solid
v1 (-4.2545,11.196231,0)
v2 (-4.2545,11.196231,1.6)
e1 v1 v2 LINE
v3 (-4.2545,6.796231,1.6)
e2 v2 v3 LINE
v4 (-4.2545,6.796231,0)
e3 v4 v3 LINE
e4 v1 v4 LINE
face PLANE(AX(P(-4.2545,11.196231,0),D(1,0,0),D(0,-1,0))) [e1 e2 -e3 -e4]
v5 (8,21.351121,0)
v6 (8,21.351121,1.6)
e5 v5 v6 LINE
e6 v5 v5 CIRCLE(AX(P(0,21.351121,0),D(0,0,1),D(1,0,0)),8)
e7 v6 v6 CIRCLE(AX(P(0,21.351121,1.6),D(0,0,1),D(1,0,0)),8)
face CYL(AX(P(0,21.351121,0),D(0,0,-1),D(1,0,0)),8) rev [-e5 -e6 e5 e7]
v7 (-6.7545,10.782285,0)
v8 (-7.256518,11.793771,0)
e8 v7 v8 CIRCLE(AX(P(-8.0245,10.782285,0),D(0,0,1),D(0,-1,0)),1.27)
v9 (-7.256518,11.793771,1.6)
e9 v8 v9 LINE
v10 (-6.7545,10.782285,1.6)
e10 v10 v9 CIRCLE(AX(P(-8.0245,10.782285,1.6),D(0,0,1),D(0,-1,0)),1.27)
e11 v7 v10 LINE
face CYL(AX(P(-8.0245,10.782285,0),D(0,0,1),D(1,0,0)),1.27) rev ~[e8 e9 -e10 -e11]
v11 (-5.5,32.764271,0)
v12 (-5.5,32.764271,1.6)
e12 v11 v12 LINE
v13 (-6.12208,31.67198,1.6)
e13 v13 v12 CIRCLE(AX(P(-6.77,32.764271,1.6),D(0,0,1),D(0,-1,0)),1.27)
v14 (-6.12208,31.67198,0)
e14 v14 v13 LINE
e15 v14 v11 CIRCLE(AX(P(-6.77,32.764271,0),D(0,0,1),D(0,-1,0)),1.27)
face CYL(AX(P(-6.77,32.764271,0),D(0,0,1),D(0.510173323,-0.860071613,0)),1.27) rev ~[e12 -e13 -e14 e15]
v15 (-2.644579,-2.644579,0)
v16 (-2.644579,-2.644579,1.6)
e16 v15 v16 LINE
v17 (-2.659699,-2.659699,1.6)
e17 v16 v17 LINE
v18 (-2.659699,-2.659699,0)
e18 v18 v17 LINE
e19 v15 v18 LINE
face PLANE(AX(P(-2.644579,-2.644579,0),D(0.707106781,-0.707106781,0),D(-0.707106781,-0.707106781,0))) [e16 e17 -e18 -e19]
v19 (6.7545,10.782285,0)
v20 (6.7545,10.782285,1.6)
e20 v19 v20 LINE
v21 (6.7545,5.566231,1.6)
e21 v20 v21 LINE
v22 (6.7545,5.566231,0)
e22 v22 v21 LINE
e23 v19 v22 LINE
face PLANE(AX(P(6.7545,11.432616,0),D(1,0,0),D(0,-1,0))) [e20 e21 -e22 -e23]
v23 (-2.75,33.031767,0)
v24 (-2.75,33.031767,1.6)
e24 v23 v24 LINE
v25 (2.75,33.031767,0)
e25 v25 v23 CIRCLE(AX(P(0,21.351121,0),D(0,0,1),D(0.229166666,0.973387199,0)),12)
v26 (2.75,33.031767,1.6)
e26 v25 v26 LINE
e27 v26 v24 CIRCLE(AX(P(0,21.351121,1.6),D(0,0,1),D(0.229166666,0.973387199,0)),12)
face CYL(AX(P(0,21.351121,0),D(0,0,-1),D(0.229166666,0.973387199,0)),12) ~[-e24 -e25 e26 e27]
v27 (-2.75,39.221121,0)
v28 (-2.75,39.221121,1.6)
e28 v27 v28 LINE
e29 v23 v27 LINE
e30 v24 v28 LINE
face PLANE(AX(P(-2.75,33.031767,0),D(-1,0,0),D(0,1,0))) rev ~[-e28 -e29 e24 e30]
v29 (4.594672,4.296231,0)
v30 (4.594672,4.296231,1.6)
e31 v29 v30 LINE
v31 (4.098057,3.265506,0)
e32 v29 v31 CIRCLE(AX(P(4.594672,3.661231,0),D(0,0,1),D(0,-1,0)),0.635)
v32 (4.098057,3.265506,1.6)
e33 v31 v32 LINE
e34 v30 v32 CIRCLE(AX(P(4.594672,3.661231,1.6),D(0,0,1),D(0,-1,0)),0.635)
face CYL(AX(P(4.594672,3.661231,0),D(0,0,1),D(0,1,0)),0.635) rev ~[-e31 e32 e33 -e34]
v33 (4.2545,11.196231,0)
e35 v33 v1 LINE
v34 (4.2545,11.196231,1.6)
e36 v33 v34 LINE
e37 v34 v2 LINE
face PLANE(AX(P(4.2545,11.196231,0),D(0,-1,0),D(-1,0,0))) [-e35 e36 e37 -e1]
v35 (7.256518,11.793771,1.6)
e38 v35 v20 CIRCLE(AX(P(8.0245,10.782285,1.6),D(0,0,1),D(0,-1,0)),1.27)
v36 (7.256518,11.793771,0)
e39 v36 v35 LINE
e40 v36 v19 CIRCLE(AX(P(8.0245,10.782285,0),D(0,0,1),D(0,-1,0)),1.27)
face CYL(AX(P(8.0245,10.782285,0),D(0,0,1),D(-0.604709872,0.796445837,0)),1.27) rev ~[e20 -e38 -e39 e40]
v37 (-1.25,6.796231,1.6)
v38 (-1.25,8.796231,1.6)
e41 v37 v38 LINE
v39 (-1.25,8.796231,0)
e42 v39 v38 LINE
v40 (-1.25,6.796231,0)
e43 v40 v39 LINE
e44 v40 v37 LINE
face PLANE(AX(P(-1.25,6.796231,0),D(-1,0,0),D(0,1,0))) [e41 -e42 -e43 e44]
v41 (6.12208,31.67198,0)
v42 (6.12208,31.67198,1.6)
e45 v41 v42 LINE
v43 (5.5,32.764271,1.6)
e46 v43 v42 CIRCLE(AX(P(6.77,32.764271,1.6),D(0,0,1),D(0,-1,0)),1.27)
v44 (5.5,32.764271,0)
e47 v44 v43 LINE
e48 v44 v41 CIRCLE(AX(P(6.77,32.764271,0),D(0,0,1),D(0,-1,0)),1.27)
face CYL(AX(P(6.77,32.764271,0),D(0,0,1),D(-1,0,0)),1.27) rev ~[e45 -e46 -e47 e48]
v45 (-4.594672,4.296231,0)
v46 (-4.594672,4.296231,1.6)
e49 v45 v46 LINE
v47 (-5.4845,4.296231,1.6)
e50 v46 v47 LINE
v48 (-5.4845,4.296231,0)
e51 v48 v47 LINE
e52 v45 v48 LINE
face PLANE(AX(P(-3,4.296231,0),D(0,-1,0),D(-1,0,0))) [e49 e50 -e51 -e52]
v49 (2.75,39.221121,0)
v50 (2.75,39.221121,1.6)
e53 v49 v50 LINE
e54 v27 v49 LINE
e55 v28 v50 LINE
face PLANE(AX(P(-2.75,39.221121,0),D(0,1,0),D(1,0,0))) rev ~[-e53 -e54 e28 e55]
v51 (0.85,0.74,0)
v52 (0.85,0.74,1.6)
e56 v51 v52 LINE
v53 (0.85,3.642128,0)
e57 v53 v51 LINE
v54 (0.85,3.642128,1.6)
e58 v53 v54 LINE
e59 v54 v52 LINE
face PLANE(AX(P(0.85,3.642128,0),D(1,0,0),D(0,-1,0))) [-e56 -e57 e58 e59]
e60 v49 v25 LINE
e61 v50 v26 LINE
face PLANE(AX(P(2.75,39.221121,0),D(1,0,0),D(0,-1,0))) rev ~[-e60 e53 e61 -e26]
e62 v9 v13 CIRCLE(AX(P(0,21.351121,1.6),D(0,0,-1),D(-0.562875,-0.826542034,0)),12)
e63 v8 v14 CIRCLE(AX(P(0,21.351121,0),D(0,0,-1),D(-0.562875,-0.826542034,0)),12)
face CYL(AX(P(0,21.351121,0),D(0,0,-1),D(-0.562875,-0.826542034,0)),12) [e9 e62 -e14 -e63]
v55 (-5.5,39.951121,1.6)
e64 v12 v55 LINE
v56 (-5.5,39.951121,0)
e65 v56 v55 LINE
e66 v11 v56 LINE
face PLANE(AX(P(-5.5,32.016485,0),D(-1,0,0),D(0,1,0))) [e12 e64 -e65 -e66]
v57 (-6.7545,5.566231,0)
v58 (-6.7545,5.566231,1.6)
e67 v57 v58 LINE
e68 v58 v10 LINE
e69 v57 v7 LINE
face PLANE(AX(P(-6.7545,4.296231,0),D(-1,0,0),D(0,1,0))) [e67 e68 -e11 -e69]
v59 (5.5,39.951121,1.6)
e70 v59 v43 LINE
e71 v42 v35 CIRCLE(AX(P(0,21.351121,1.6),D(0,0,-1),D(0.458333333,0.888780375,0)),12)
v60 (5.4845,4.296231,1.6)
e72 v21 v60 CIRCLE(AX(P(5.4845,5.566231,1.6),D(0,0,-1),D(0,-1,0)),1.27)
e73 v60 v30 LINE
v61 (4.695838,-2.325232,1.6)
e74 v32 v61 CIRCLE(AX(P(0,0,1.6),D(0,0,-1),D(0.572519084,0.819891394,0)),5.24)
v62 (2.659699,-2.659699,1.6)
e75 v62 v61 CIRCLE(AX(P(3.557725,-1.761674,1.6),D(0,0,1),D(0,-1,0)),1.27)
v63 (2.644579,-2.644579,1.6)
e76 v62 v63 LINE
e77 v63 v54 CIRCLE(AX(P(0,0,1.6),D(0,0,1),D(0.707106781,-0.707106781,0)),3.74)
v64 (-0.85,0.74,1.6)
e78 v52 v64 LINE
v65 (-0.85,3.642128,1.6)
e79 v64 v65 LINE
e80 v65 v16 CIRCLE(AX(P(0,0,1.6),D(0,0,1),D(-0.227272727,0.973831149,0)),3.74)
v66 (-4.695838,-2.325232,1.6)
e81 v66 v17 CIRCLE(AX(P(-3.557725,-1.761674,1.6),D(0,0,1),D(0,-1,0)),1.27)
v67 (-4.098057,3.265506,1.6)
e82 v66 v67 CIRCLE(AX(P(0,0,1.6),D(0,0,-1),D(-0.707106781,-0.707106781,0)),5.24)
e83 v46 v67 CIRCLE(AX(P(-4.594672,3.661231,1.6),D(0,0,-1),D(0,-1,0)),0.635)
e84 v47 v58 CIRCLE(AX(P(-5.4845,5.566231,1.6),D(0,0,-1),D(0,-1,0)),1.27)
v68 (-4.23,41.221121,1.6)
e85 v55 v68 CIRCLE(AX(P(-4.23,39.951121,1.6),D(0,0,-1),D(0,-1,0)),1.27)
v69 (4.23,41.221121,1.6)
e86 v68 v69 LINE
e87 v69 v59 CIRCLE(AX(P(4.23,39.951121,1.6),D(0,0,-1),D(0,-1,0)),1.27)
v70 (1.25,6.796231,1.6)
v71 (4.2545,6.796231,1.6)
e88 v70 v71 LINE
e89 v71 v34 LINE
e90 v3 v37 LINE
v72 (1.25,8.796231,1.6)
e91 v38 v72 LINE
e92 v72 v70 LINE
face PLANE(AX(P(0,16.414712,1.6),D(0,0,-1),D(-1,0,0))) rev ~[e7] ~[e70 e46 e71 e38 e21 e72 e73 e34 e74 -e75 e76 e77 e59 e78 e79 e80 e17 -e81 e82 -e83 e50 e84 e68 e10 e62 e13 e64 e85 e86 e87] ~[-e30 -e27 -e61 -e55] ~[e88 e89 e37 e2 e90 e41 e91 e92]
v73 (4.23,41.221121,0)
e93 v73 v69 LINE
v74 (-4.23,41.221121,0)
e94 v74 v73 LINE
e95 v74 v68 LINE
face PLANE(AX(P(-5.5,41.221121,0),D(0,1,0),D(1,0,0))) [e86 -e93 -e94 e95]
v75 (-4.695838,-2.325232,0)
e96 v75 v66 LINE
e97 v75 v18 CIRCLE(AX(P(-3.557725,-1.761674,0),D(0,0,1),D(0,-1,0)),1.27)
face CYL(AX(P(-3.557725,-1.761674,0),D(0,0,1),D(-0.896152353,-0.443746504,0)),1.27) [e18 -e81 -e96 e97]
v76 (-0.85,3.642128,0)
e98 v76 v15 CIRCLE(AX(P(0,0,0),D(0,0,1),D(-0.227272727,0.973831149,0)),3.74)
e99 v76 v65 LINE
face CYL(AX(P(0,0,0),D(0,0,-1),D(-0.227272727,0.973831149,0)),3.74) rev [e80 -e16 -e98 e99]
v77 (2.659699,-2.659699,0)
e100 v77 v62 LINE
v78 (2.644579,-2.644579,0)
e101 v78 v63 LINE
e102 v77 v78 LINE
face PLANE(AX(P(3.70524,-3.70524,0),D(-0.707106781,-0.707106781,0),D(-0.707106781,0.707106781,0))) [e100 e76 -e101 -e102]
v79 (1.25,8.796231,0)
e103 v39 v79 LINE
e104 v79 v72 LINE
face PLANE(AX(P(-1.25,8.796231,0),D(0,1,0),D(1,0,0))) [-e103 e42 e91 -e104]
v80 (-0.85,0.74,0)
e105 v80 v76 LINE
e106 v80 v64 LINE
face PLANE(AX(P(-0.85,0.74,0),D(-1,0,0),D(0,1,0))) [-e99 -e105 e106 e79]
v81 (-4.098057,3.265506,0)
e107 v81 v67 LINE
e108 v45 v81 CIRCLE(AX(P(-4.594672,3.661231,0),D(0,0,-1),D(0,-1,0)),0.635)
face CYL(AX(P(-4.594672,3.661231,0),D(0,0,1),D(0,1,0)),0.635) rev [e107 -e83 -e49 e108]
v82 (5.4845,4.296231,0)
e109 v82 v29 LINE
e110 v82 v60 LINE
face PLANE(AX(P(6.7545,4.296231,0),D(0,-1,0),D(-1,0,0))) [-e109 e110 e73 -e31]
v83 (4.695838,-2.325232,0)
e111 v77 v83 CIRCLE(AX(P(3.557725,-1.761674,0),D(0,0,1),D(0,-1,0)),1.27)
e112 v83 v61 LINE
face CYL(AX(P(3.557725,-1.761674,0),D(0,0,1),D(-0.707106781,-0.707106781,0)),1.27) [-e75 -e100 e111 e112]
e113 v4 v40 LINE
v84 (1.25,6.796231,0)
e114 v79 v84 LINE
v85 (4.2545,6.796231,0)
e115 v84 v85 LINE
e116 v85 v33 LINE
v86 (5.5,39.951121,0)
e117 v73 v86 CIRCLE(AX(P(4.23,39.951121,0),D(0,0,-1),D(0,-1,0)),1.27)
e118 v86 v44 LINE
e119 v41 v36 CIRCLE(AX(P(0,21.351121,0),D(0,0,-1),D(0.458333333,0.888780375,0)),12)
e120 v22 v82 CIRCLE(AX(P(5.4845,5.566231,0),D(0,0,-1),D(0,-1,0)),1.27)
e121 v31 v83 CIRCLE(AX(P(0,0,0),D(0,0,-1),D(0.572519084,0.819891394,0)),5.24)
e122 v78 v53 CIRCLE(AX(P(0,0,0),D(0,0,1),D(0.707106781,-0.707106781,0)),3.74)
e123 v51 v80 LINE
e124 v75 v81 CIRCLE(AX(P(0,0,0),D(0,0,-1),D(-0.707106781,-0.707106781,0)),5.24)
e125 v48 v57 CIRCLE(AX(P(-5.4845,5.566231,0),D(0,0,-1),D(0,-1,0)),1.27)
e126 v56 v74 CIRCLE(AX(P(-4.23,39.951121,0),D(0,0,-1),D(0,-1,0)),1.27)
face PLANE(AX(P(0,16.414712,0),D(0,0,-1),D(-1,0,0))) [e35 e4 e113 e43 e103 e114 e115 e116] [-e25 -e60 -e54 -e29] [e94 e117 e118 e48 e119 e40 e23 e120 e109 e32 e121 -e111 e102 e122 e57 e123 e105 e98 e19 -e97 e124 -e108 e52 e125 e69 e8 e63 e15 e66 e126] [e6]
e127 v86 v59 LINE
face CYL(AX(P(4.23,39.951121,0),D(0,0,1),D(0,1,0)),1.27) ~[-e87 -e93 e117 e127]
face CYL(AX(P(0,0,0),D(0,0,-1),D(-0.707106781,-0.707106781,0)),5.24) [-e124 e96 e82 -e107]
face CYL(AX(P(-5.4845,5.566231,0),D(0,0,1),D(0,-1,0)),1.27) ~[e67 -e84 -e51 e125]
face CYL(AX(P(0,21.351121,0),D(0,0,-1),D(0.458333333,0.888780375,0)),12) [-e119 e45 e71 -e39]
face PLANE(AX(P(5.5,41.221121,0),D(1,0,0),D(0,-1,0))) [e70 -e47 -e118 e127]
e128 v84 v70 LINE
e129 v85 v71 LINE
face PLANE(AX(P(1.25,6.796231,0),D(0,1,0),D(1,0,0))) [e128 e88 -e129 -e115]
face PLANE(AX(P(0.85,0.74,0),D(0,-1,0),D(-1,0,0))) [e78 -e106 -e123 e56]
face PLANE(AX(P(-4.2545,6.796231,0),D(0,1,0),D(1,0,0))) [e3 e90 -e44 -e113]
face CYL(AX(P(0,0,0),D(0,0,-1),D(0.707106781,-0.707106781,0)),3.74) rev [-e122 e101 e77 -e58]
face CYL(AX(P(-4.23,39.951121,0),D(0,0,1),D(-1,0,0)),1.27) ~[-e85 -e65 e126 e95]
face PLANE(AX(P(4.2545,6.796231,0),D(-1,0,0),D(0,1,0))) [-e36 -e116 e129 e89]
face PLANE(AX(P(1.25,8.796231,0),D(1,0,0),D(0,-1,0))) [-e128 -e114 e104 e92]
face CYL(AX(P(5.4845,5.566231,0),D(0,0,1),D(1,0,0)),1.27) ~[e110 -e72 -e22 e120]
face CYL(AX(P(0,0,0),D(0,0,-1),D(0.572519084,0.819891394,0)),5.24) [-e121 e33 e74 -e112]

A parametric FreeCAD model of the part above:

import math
import FreeCAD as App
import Part
import Sketcher

V = App.Vector


def edges_at(feature, points):
    """Names of the edges that pass closest to the given points."""
    edges = feature.Shape.Edges
    near = lambda p: min(range(len(edges)), key=lambda i: edges[i].distToShape(Part.Vertex(*p))[0])
    return sorted({f"Edge{near(p) + 1}" for p in points})

doc = App.newDocument("Part")
body = doc.addObject("PartDesign::Body", "Body")

sketch1 = body.newObject("Sketcher::SketchObject", "Sketch")
sketch1.AttachmentSupport = (doc.getObject("XY_Plane"), [""])
sketch1.MapMode = "FlatFace"
sketch1.addGeometry([
    Part.LineSegment(V(-5.5, 41.2, 0), V(-5.5, 32, 0)),
    Part.ArcOfCircle(Part.Circle(V(0, 21.4, 0), V(0, 0, 1), 12), math.radians(117), math.radians(236)),
    Part.LineSegment(V(-6.8, 11.4, 0), V(-6.8, 4.3, 0)),
    Part.LineSegment(V(-6.8, 4.3, 0), V(-3, 4.3, 0)),
    Part.ArcOfCircle(Part.Circle(V(0, 0, 0), V(0, 0, 1), 5.2), math.radians(125), math.radians(225)),
    Part.LineSegment(V(-3.7, -3.7, 0), V(-2.6, -2.6, 0)),
    Part.ArcOfCircle(Part.Circle(V(0, 0, 0), V(0, 0, 1), 3.7), math.radians(103), math.radians(225)),
    Part.LineSegment(V(-0.8, 3.6, 0), V(-0.8, 0.7, 0)),
    Part.LineSegment(V(-0.8, 0.7, 0), V(0.8, 0.7, 0)),
    Part.LineSegment(V(0.8, 0.7, 0), V(0.8, 3.6, 0)),
    Part.ArcOfCircle(Part.Circle(V(0, 0, 0), V(0, 0, 1), 3.7), math.radians(-45), math.radians(77)),
    Part.LineSegment(V(2.6, -2.6, 0), V(3.7, -3.7, 0)),
    Part.ArcOfCircle(Part.Circle(V(0, 0, 0), V(0, 0, 1), 5.2), math.radians(-45), math.radians(55)),
    Part.LineSegment(V(3, 4.3, 0), V(6.8, 4.3, 0)),
    Part.LineSegment(V(6.8, 4.3, 0), V(6.8, 11.4, 0)),
    Part.ArcOfCircle(Part.Circle(V(0, 21.4, 0), V(0, 0, 1), 12), math.radians(-56), math.radians(63)),
    Part.LineSegment(V(5.5, 32, 0), V(5.5, 41.2, 0)),
    Part.LineSegment(V(5.5, 41.2, 0), V(-5.5, 41.2, 0)),
    Part.LineSegment(V(-1.2, 6.8, 0), V(-4.3, 6.8, 0)),
    Part.LineSegment(V(-4.3, 6.8, 0), V(-4.3, 11.2, 0)),
    Part.LineSegment(V(-4.3, 11.2, 0), V(4.3, 11.2, 0)),
    Part.LineSegment(V(4.3, 11.2, 0), V(4.3, 6.8, 0)),
    Part.LineSegment(V(4.3, 6.8, 0), V(1.2, 6.8, 0)),
    Part.LineSegment(V(1.2, 6.8, 0), V(1.2, 8.8, 0)),
    Part.LineSegment(V(1.2, 8.8, 0), V(-1.2, 8.8, 0)),
    Part.LineSegment(V(-1.2, 8.8, 0), V(-1.2, 6.8, 0)),
    Part.Circle(V(0, 21.4, 0), V(0, 0, 1), 8),
    Part.LineSegment(V(-2.8, 39.2, 0), V(2.8, 39.2, 0)),
    Part.LineSegment(V(2.8, 39.2, 0), V(2.8, 33, 0)),
    Part.ArcOfCircle(Part.Circle(V(0, 21.4, 0), V(0, 0, 1), 12), math.radians(77), math.radians(103)),
    Part.LineSegment(V(-2.8, 33, 0), V(-2.8, 39.2, 0)),
], False)
sketch1.addConstraint([
    Sketcher.Constraint("Coincident", 0, 2, 1, 1),
    Sketcher.Constraint("Coincident", 1, 2, 2, 1),
    Sketcher.Constraint("Coincident", 2, 2, 3, 1),
    Sketcher.Constraint("Coincident", 3, 2, 4, 1),
    Sketcher.Constraint("Coincident", 4, 2, 5, 1),
    Sketcher.Constraint("Coincident", 5, 2, 6, 2),
    Sketcher.Constraint("Coincident", 6, 1, 7, 1),
    Sketcher.Constraint("Coincident", 7, 2, 8, 1),
    Sketcher.Constraint("Coincident", 8, 2, 9, 1),
    Sketcher.Constraint("Coincident", 9, 2, 10, 2),
    Sketcher.Constraint("Coincident", 10, 1, 11, 1),
    Sketcher.Constraint("Coincident", 11, 2, 12, 1),
    Sketcher.Constraint("Coincident", 12, 2, 13, 1),
    Sketcher.Constraint("Coincident", 13, 2, 14, 1),
    Sketcher.Constraint("Coincident", 14, 2, 15, 1),
    Sketcher.Constraint("Coincident", 15, 2, 16, 1),
    Sketcher.Constraint("Coincident", 16, 2, 17, 1),
    Sketcher.Constraint("Coincident", 17, 2, 0, 1),
    Sketcher.Constraint("Coincident", 18, 2, 19, 1),
    Sketcher.Constraint("Coincident", 19, 2, 20, 1),
    Sketcher.Constraint("Coincident", 20, 2, 21, 1),
    Sketcher.Constraint("Coincident", 21, 2, 22, 1),
    Sketcher.Constraint("Coincident", 22, 2, 23, 1),
    Sketcher.Constraint("Coincident", 23, 2, 24, 1),
    Sketcher.Constraint("Coincident", 24, 2, 25, 1),
    Sketcher.Constraint("Coincident", 25, 2, 18, 1),
    Sketcher.Constraint("Coincident", 27, 2, 28, 1),
    Sketcher.Constraint("Coincident", 28, 2, 29, 1),
    Sketcher.Constraint("Coincident", 29, 2, 30, 1),
    Sketcher.Constraint("Coincident", 30, 2, 27, 1),
    Sketcher.Constraint("Vertical", 0),
    Sketcher.Constraint("Vertical", 2),
    Sketcher.Constraint("Horizontal", 3),
    Sketcher.Constraint("Vertical", 7),
    Sketcher.Constraint("Horizontal", 8),
    Sketcher.Constraint("Vertical", 9),
    Sketcher.Constraint("Horizontal", 13),
    Sketcher.Constraint("Vertical", 14),
    Sketcher.Constraint("Vertical", 16),
    Sketcher.Constraint("Horizontal", 17),
    Sketcher.Constraint("Horizontal", 18),
    Sketcher.Constraint("Vertical", 19),
    Sketcher.Constraint("Horizontal", 20),
    Sketcher.Constraint("Vertical", 21),
    Sketcher.Constraint("Horizontal", 22),
    Sketcher.Constraint("Vertical", 23),
    Sketcher.Constraint("Horizontal", 24),
    Sketcher.Constraint("Vertical", 25),
    Sketcher.Constraint("Horizontal", 27),
    Sketcher.Constraint("Vertical", 28),
    Sketcher.Constraint("Vertical", 30),
    Sketcher.Constraint("Coincident", 4, 3, -1, 1),
    Sketcher.Constraint("Coincident", 6, 3, -1, 1),
    Sketcher.Constraint("Coincident", 10, 3, -1, 1),
    Sketcher.Constraint("Coincident", 12, 3, -1, 1),
    Sketcher.Constraint("Coincident", 15, 3, 1, 3),
    Sketcher.Constraint("Coincident", 26, 3, 1, 3),
    Sketcher.Constraint("Coincident", 29, 3, 1, 3),
    Sketcher.Constraint("Equal", 6, 10),
    Sketcher.Constraint("Equal", 4, 12),
    Sketcher.Constraint("Equal", 1, 15),
    Sketcher.Constraint("Equal", 15, 29),
    Sketcher.Constraint("Symmetric", 2, 2, 13, 2, -2),
    Sketcher.Constraint("Symmetric", 0, 2, 15, 2, -2),
    Sketcher.Constraint("Symmetric", 18, 2, 21, 2, -2),
    Sketcher.Constraint("Perpendicular", 5, 11),
    Sketcher.Constraint("Horizontal", 6, 1, 9, 2),
    Sketcher.Constraint("Horizontal", 5, 2, 10, 1),
    Sketcher.Constraint("Horizontal", 4, 2, 11, 2),
    Sketcher.Constraint("Horizontal", 28, 2, 29, 2),
    Sketcher.Constraint("Equal", 18, 22),
    Sketcher.Constraint("Diameter", 26, 16.0),
    Sketcher.Constraint("Radius", 1, 12.0),
    Sketcher.Constraint("DistanceX", 17, 2, 17, 1, 11.0),
    Sketcher.Constraint("DistanceY", 23, 1, 23, 2, 2.0),
    Sketcher.Constraint("Radius", 4, 5.24),
    Sketcher.Constraint("Radius", 6, 3.74),
    Sketcher.Constraint("DistanceX", 8, 1, 8, 2, 1.7),
    Sketcher.Constraint("DistanceX", 24, 2, 24, 1, 2.5),
    Sketcher.Constraint("DistanceX", 27, 1, 27, 2, 5.5),
    Sketcher.Constraint("DistanceY", 19, 1, 19, 2, 4.4),
    Sketcher.Constraint("DistanceX", 3, 2, -1, 1, 3.0),
    Sketcher.Constraint("DistanceY", 27, 2, 16, 2, 2.0),
    Sketcher.Constraint("DistanceY", 3, 2, 18, 2, 2.5),
    Sketcher.Constraint("DistanceX", 2, 2, 18, 2, 2.5),
    Sketcher.Constraint("DistanceX", 20, 1, 20, 2, 8.509),
    Sketcher.Constraint("DistanceY", -1, 1, 7, 2, 0.74),
    Sketcher.Constraint("DistanceY", 1, 3, 16, 2, 19.87),
    Sketcher.Constraint("DistanceY", 2, 2, 2, 1, 7.136386),
    Sketcher.Constraint("DistanceX", 4, 2, -1, 1, 3.70524),
])
pad1 = body.newObject("PartDesign::Pad", "Pad")
pad1.Profile = sketch1
pad1.Length = 1.6
doc.recompute()

fillet = body.newObject("PartDesign::Fillet", "Fillet")
fillet.Base = (pad1, edges_at(pad1, [(-3, 4.296, 0.8), (3, 4.296, 0.8)]))
fillet.Radius = 0.635
doc.recompute()

fillet2 = body.newObject("PartDesign::Fillet", "Fillet001")
fillet2.Base = (fillet, edges_at(fillet, [
    (-6.755, 4.296, 0.8),
    (-6.755, 11.433, 0.8),
    (-5.5, 32.016, 0.8),
    (-5.5, 41.221, 0.8),
    (5.5, 41.221, 0.8),
    (5.5, 32.016, 0.8),
    (6.755, 11.433, 0.8),
    (6.755, 4.296, 0.8),
    (3.705, -3.705, 0.8),
    (-3.705, -3.705, 0.8),
]))
fillet2.Radius = 1.27

doc.recompute()
